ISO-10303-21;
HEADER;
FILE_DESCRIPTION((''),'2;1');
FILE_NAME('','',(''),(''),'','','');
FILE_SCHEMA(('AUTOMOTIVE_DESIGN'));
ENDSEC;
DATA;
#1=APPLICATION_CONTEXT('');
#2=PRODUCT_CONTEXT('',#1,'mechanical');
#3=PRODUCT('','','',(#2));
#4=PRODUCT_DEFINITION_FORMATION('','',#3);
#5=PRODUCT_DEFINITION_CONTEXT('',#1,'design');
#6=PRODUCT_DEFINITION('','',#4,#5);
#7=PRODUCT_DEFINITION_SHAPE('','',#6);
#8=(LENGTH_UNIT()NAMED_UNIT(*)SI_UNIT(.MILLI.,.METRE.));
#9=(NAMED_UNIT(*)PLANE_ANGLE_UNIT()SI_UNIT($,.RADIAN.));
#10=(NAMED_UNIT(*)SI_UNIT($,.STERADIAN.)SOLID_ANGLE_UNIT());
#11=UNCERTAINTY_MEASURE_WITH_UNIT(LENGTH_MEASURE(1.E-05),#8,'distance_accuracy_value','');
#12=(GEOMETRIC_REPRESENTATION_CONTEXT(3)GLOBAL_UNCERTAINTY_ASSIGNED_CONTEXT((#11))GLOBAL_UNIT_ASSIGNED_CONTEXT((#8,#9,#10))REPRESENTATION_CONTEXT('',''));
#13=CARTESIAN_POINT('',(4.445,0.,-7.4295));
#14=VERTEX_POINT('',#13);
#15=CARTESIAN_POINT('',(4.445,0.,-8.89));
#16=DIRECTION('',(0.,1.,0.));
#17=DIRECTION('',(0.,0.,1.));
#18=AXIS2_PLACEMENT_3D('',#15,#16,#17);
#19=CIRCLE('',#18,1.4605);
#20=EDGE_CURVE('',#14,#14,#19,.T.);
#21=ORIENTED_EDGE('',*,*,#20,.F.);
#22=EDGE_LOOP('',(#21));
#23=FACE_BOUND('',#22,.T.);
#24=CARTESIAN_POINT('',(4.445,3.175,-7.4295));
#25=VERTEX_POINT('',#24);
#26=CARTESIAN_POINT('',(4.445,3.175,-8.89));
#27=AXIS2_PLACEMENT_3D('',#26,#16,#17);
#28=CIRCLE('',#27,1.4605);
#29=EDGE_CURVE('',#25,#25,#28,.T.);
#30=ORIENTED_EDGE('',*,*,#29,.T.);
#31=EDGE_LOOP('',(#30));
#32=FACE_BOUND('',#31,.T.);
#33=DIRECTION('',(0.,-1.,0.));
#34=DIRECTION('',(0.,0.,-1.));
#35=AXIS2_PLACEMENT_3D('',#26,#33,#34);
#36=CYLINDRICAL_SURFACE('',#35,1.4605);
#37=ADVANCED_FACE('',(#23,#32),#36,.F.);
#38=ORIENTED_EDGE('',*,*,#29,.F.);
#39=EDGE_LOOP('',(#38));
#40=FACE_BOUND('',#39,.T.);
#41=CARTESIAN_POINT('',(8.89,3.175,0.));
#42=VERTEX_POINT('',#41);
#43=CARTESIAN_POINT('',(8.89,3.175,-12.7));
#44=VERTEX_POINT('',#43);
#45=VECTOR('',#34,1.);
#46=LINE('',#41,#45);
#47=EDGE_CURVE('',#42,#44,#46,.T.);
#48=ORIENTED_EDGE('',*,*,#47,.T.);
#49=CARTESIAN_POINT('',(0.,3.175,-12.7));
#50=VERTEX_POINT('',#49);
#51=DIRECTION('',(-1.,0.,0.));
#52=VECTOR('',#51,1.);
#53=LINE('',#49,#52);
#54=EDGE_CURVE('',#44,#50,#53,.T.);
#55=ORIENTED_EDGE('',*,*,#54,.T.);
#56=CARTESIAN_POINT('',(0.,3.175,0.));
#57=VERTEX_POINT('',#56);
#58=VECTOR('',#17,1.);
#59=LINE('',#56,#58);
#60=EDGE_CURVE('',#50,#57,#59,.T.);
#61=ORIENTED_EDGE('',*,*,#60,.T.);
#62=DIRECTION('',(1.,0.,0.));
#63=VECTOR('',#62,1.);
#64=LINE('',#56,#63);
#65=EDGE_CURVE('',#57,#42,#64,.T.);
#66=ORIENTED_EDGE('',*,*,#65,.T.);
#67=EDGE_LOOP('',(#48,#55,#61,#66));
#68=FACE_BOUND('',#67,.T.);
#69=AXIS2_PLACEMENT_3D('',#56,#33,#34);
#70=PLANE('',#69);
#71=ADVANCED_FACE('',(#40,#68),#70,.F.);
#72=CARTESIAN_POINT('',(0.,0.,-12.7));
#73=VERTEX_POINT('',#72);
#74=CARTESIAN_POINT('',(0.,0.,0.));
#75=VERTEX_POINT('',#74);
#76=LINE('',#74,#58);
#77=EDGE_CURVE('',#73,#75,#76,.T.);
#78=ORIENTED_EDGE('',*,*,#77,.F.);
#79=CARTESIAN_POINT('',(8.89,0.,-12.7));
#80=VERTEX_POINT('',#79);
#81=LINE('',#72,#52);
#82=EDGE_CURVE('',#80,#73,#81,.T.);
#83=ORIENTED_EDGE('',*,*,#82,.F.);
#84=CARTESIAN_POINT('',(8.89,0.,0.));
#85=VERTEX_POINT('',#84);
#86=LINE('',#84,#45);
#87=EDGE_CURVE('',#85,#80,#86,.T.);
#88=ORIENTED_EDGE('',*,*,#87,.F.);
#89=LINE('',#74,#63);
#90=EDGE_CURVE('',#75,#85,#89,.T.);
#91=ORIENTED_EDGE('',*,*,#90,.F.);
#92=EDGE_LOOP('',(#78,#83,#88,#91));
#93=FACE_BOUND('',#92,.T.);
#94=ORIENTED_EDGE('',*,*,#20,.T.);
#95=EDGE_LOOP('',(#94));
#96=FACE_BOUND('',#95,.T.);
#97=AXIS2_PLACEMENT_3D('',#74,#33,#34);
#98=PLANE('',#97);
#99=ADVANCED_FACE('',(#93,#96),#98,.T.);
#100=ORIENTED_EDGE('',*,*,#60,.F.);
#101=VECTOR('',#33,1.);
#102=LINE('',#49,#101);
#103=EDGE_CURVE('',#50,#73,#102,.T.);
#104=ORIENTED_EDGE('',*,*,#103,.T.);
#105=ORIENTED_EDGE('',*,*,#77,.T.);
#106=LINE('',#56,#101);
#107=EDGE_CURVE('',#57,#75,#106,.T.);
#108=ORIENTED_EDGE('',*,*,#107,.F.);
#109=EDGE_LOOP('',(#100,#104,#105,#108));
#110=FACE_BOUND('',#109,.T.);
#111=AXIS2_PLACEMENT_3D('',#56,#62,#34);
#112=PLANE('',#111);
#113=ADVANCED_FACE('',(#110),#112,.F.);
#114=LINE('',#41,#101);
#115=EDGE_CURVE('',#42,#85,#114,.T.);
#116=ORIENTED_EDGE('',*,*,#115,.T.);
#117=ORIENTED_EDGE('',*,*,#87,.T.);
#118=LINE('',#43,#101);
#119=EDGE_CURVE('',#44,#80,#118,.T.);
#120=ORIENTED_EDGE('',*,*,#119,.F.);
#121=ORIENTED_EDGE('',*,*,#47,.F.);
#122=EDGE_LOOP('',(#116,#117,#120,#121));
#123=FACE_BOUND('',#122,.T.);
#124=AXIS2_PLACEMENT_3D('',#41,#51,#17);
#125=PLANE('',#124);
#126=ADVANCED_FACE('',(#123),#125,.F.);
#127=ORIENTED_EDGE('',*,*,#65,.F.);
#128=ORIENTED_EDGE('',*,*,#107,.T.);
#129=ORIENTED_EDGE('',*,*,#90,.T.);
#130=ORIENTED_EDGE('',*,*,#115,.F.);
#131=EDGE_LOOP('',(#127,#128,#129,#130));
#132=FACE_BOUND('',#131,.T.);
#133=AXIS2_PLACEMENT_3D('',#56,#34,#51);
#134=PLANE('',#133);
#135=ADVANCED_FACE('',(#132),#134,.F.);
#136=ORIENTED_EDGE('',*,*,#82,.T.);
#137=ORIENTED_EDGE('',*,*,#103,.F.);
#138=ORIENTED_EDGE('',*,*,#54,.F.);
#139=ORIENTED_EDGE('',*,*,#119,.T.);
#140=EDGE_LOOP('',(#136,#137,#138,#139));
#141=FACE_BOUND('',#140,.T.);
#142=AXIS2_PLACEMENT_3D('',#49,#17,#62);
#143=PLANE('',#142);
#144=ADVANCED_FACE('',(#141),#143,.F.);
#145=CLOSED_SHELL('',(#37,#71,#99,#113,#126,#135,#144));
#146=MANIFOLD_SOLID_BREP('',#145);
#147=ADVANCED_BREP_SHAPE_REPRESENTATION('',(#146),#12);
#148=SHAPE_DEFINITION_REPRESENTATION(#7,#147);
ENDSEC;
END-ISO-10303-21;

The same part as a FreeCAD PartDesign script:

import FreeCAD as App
import Part
import Sketcher
from FreeCAD import Vector
Q = App.Units.Quantity

doc = App.newDocument("Part")
body = doc.addObject("PartDesign::Body", "Body")

sketch1 = doc.addObject("Sketcher::SketchObject", "Sketch")
body.addObject(sketch1)
sketch1.AttachmentSupport = (doc.XZ_Plane, [""])
sketch1.MapMode = "FlatFace"
sketch1.addGeometry(Part.LineSegment(Vector(0, -12.7, 0), Vector(0, 0, 0)), False)
sketch1.addGeometry(Part.LineSegment(Vector(0, 0, 0), Vector(8.89, 0, 0)), False)
sketch1.addGeometry(Part.LineSegment(Vector(8.89, 0, 0), Vector(8.89, -12.7, 0)), False)
sketch1.addGeometry(Part.LineSegment(Vector(8.89, -12.7, 0), Vector(0, -12.7, 0)), False)
sketch1.addGeometry(Part.Circle(Vector(4.445, -8.89, 0), Vector(0, 0, 1), 1.4605), False)
sketch1.addConstraint(Sketcher.Constraint("Coincident", 0, 2, 1, 1))
sketch1.addConstraint(Sketcher.Constraint("Coincident", 1, 2, 2, 1))
sketch1.addConstraint(Sketcher.Constraint("Coincident", 2, 2, 3, 1))
sketch1.addConstraint(Sketcher.Constraint("Coincident", 3, 2, 0, 1))
sketch1.addConstraint(Sketcher.Constraint("Vertical", 0))
sketch1.addConstraint(Sketcher.Constraint("Horizontal", 1))
sketch1.addConstraint(Sketcher.Constraint("Vertical", 2))
sketch1.addConstraint(Sketcher.Constraint("Horizontal", 3))
sketch1.addConstraint(Sketcher.Constraint("Coincident", 0, 2, -1, 1))
sketch1.addConstraint(Sketcher.Constraint("Diameter", 4, Q("0.115 in")))
sketch1.addConstraint(Sketcher.Constraint("DistanceY", 0, 1, 0, 2, Q("0.5 in")))
sketch1.addConstraint(Sketcher.Constraint("DistanceX", 1, 1, 1, 2, Q("0.35 in")))
sketch1.addConstraint(Sketcher.Constraint("DistanceY", 4, 3, -1, 1, Q("0.35 in")))
sketch1.addConstraint(Sketcher.Constraint("DistanceX", -1, 1, 4, 3, Q("0.175 in")))
pad1 = doc.addObject("PartDesign::Pad", "Pad")
body.addObject(pad1)
pad1.Profile = sketch1
pad1.Length = Q("0.125 in")
pad1.Reversed = True

doc.recompute()
